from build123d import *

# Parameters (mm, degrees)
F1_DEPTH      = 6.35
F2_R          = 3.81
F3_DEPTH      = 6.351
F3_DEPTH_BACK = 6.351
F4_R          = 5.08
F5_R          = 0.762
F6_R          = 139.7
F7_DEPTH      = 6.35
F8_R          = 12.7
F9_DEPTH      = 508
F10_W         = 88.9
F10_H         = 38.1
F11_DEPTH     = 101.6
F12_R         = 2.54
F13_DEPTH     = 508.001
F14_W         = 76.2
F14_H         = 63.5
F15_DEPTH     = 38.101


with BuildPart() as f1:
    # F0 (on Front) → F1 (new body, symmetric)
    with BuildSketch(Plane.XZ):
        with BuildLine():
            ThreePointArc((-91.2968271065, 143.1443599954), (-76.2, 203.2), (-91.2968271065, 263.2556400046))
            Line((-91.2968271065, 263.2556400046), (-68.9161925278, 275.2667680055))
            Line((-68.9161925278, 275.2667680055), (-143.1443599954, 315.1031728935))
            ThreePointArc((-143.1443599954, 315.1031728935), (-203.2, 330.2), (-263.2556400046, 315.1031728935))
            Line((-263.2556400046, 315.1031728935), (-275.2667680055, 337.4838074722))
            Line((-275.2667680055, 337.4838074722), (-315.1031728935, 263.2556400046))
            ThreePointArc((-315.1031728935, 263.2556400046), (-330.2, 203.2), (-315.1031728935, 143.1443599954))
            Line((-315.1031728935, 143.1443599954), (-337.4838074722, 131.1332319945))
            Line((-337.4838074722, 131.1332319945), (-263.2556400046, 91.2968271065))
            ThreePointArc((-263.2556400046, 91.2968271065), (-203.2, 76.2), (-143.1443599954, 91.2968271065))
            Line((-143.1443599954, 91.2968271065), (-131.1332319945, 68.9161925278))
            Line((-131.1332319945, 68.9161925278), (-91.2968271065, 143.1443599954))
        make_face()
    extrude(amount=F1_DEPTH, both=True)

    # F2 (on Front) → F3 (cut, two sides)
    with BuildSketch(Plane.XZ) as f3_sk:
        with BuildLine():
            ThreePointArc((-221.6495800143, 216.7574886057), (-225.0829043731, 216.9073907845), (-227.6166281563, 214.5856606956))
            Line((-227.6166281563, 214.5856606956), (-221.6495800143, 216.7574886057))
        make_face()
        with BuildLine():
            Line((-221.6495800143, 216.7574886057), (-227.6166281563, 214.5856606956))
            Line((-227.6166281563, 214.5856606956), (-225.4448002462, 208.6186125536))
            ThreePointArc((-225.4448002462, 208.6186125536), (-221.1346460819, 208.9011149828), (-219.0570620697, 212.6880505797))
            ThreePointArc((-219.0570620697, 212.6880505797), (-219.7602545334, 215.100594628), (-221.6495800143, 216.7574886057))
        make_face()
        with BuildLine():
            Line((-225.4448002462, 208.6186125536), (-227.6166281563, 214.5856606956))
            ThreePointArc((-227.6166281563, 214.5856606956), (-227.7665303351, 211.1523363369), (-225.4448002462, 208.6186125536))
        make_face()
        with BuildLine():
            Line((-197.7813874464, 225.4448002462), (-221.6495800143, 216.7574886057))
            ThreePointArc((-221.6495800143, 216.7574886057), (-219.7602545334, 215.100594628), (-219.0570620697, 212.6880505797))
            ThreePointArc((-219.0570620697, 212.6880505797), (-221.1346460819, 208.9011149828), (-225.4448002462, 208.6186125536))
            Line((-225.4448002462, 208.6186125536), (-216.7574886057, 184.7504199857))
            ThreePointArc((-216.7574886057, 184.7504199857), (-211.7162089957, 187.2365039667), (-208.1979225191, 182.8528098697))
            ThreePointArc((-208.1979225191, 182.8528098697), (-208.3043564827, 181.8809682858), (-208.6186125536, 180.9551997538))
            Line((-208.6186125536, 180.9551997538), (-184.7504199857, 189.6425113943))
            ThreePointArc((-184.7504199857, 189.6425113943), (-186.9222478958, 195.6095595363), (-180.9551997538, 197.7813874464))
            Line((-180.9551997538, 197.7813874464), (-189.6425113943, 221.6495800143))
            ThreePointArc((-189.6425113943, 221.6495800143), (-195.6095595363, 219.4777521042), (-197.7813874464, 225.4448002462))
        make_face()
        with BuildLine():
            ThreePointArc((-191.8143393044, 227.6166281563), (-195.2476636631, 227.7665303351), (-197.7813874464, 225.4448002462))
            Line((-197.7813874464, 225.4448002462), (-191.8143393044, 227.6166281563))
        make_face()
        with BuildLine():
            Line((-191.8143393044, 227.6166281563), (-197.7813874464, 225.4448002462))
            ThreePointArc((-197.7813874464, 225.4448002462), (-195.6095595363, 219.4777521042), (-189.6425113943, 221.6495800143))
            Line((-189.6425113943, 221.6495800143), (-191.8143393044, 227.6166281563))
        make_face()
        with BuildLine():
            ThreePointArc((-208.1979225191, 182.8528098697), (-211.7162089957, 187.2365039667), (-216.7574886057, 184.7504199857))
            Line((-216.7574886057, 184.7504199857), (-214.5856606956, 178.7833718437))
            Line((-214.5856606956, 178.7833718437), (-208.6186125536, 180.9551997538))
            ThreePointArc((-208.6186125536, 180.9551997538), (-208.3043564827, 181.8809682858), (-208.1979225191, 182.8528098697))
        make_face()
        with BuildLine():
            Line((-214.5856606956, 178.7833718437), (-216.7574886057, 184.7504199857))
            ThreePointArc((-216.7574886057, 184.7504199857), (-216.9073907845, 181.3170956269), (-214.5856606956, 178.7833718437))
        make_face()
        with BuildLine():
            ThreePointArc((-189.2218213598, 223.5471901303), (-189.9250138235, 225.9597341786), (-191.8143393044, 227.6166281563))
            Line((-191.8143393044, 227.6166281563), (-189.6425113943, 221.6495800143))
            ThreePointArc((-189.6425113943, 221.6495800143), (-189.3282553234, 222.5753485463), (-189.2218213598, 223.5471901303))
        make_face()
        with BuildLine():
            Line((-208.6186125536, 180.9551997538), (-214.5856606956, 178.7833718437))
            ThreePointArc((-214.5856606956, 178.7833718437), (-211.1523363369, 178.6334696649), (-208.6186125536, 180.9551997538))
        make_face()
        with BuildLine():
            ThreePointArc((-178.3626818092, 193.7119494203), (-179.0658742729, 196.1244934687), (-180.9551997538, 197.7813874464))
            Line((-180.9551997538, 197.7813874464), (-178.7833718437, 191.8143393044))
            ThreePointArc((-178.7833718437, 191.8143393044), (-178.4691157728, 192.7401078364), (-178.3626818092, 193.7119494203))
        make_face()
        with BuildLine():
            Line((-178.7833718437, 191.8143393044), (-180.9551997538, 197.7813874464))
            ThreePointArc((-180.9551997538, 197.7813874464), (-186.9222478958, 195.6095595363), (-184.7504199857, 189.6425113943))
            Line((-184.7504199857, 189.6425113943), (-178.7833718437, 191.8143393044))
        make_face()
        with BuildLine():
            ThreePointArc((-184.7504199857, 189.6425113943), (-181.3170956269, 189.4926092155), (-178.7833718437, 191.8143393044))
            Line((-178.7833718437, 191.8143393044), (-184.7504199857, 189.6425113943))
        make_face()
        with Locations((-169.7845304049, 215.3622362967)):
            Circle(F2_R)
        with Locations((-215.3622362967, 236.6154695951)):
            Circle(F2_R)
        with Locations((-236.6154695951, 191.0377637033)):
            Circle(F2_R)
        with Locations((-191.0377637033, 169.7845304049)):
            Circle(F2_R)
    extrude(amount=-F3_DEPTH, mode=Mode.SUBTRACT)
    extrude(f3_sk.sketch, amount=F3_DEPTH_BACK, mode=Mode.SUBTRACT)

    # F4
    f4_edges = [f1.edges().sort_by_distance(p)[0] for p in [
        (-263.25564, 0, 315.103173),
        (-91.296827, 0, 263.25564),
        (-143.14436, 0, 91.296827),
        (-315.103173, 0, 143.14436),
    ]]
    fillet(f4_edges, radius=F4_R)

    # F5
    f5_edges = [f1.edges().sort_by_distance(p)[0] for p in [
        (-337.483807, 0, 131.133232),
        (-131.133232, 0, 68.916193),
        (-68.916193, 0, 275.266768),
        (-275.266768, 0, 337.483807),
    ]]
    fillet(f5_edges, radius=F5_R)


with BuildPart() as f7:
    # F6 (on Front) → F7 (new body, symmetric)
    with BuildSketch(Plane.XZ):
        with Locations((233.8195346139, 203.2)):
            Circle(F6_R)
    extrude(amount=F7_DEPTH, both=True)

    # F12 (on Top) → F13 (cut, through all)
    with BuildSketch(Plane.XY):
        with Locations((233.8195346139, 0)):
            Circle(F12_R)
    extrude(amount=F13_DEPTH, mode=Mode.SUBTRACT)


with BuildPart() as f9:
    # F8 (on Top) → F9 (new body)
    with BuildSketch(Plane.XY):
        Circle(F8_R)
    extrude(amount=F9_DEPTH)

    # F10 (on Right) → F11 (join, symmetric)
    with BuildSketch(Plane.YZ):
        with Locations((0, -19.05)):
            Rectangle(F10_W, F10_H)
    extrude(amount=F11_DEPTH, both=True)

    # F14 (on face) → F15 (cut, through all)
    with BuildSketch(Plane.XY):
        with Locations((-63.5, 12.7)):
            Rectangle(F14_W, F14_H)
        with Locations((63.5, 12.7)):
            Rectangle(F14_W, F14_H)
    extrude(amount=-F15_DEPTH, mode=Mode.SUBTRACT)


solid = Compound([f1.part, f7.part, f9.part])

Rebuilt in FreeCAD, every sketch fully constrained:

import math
import FreeCAD as App
import Part
import Sketcher

V = App.Vector
Q = App.Units.Quantity


def edges_at(feature, points):
    """Names of the edges that pass closest to the given points."""
    edges = feature.Shape.Edges
    near = lambda p: min(range(len(edges)), key=lambda i: edges[i].distToShape(Part.Vertex(*p))[0])
    return sorted({f"Edge{near(p) + 1}" for p in points})

doc = App.newDocument("Part")
body = doc.addObject("PartDesign::Body", "Body")

sketch1 = body.newObject("Sketcher::SketchObject", "Sketch")
sketch1.AttachmentSupport = (doc.getObject("XZ_Plane"), [""])
sketch1.MapMode = "FlatFace"
sketch1.addGeometry([
    Part.ArcOfCircle(Part.Circle(V(-203.2, 203.2, 0), V(0, 0, 1), 127), math.radians(-28.221345), math.radians(28.221345)),
    Part.LineSegment(V(-91.296827, 263.25564, 0), V(-68.916193, 275.266768, 0)),
    Part.LineSegment(V(-68.916193, 275.266768, 0), V(-143.14436, 315.103173, 0)),
    Part.ArcOfCircle(Part.Circle(V(-203.2, 203.2, 0), V(0, 0, 1), 127), math.radians(61.778655), math.radians(118.221345)),
    Part.LineSegment(V(-263.25564, 315.103173, 0), V(-275.266768, 337.483807, 0)),
    Part.LineSegment(V(-275.266768, 337.483807, 0), V(-315.103173, 263.25564, 0)),
    Part.ArcOfCircle(Part.Circle(V(-203.2, 203.2, 0), V(0, 0, 1), 127), math.radians(151.778655), math.radians(208.221345)),
    Part.LineSegment(V(-315.103173, 143.14436, 0), V(-337.483807, 131.133232, 0)),
    Part.LineSegment(V(-337.483807, 131.133232, 0), V(-263.25564, 91.296827, 0)),
    Part.ArcOfCircle(Part.Circle(V(-203.2, 203.2, 0), V(0, 0, 1), 127), math.radians(-118.221345), math.radians(-61.778655)),
    Part.LineSegment(V(-143.14436, 91.296827, 0), V(-131.133232, 68.916193, 0)),
    Part.LineSegment(V(-131.133232, 68.916193, 0), V(-91.296827, 143.14436, 0)),
], False)
sketch1.addConstraint([
    Sketcher.Constraint("Coincident", 0, 2, 1, 1),
    Sketcher.Constraint("Coincident", 1, 2, 2, 1),
    Sketcher.Constraint("Tangent", 2, 2, 3, 1),
    Sketcher.Constraint("Coincident", 3, 2, 4, 1),
    Sketcher.Constraint("Coincident", 4, 2, 5, 1),
    Sketcher.Constraint("Tangent", 5, 2, 6, 1),
    Sketcher.Constraint("Coincident", 6, 2, 7, 1),
    Sketcher.Constraint("Coincident", 7, 2, 8, 1),
    Sketcher.Constraint("Tangent", 8, 2, 9, 1),
    Sketcher.Constraint("Coincident", 9, 2, 10, 1),
    Sketcher.Constraint("Coincident", 10, 2, 11, 1),
    Sketcher.Constraint("Tangent", 11, 2, 0, 1),
    Sketcher.Constraint("Coincident", 3, 3, 0, 3),
    Sketcher.Constraint("Coincident", 6, 3, 0, 3),
    Sketcher.Constraint("Coincident", 9, 3, 0, 3),
    Sketcher.Constraint("Equal", 0, 3),
    Sketcher.Constraint("Equal", 3, 6),
    Sketcher.Constraint("Equal", 6, 9),
    Sketcher.Constraint("Perpendicular", 1, 4),
    Sketcher.Constraint("Perpendicular", 2, 5),
    Sketcher.Constraint("Perpendicular", 4, 7),
    Sketcher.Constraint("Perpendicular", 5, 8),
    Sketcher.Constraint("Perpendicular", 7, 10),
    Sketcher.Constraint("Perpendicular", 8, 11),
    Sketcher.Constraint("Horizontal", 2, 2, 3, 2),
    Sketcher.Constraint("Horizontal", 0, 2, 5, 2),
    Sketcher.Constraint("Horizontal", 8, 2, 9, 2),
    Sketcher.Constraint("Horizontal", 6, 2, 11, 2),
    Sketcher.Constraint("Radius", 0, Q("5 in")),
    Sketcher.Constraint("Distance", 1, Q("1 in")),
    Sketcher.Constraint("DistanceX", 0, 3, -1, 1, Q("8 in")),
    Sketcher.Constraint("DistanceY", -1, 1, 0, 3, Q("8 in")),
    Sketcher.Constraint("DistanceY", -1, 1, 1, 2, Q("275.266768 mm")),
])
pad1 = body.newObject("PartDesign::Pad", "Pad")
pad1.Profile = sketch1
pad1.Length = Q("0.5 in")
pad1.Midplane = True

sketch2 = body.newObject("Sketcher::SketchObject", "Sketch001")
sketch2.AttachmentSupport = (doc.getObject("XZ_Plane"), [""])
sketch2.MapMode = "FlatFace"
sketch2.addGeometry([
    Part.ArcOfCircle(Part.Circle(V(-223.54719, 212.688051, 0), V(0, 0, 1), 4.490128), math.radians(65), math.radians(155)),
    Part.ArcOfCircle(Part.Circle(V(-223.54719, 212.688051, 0), V(0, 0, 1), 4.490128), math.radians(155), math.radians(245)),
    Part.LineSegment(V(-225.4448, 208.618613, 0), V(-216.757489, 184.75042, 0)),
    Part.ArcOfCircle(Part.Circle(V(-212.688051, 182.85281, 0), V(0, 0, 1), 4.490128), math.radians(155), math.radians(245)),
    Part.ArcOfCircle(Part.Circle(V(-212.688051, 182.85281, 0), V(0, 0, 1), 4.490128), math.radians(-115), math.radians(-25)),
    Part.LineSegment(V(-208.618613, 180.9552, 0), V(-184.75042, 189.642511, 0)),
    Part.ArcOfCircle(Part.Circle(V(-182.85281, 193.711949, 0), V(0, 0, 1), 4.490128), math.radians(-115), math.radians(-25)),
    Part.ArcOfCircle(Part.Circle(V(-182.85281, 193.711949, 0), V(0, 0, 1), 4.490128), math.radians(-25), math.radians(0)),
    Part.ArcOfCircle(Part.Circle(V(-182.85281, 193.711949, 0), V(0, 0, 1), 4.490128), math.radians(0), math.radians(65)),
    Part.LineSegment(V(-180.9552, 197.781387, 0), V(-189.642511, 221.64958, 0)),
    Part.ArcOfCircle(Part.Circle(V(-193.711949, 223.54719, 0), V(0, 0, 1), 4.490128), math.radians(-25), math.radians(0)),
    Part.ArcOfCircle(Part.Circle(V(-193.711949, 223.54719, 0), V(0, 0, 1), 4.490128), math.radians(0), math.radians(65)),
    Part.ArcOfCircle(Part.Circle(V(-193.711949, 223.54719, 0), V(0, 0, 1), 4.490128), math.radians(65), math.radians(155)),
    Part.LineSegment(V(-197.781387, 225.4448, 0), V(-221.64958, 216.757489, 0)),
    Part.Circle(V(-169.78453, 215.362236, 0), V(0, 0, 1), 3.81),
    Part.Circle(V(-215.362236, 236.61547, 0), V(0, 0, 1), 3.81),
    Part.Circle(V(-236.61547, 191.037764, 0), V(0, 0, 1), 3.81),
    Part.Circle(V(-191.037764, 169.78453, 0), V(0, 0, 1), 3.81),
], False)
sketch2.addConstraint([
    Sketcher.Constraint("Tangent", 0, 2, 1, 1),
    Sketcher.Constraint("Coincident", 1, 2, 2, 1),
    Sketcher.Constraint("Coincident", 2, 2, 3, 1),
    Sketcher.Constraint("Tangent", 3, 2, 4, 1),
    Sketcher.Constraint("Coincident", 4, 2, 5, 1),
    Sketcher.Constraint("Coincident", 5, 2, 6, 1),
    Sketcher.Constraint("Tangent", 6, 2, 7, 1),
    Sketcher.Constraint("Tangent", 7, 2, 8, 1),
    Sketcher.Constraint("Coincident", 8, 2, 9, 1),
    Sketcher.Constraint("Coincident", 9, 2, 10, 1),
    Sketcher.Constraint("Tangent", 10, 2, 11, 1),
    Sketcher.Constraint("Tangent", 11, 2, 12, 1),
    Sketcher.Constraint("Coincident", 12, 2, 13, 1),
    Sketcher.Constraint("Coincident", 13, 2, 0, 1),
    Sketcher.Constraint("Coincident", 8, 3, 6, 3),
    Sketcher.Constraint("Coincident", 12, 3, 10, 3),
    Sketcher.Constraint("Equal", 0, 1),
    Sketcher.Constraint("Equal", 1, 3),
    Sketcher.Constraint("Equal", 3, 4),
    Sketcher.Constraint("Equal", 4, 6),
    Sketcher.Constraint("Equal", 8, 10),
    Sketcher.Constraint("Equal", 14, 15),
    Sketcher.Constraint("Equal", 15, 16),
    Sketcher.Constraint("Equal", 16, 17),
    Sketcher.Constraint("Perpendicular", 2, 5),
    Sketcher.Constraint("Perpendicular", 5, 9),
    Sketcher.Constraint("Perpendicular", 9, 13),
    Sketcher.Constraint("Horizontal", 8, 3, 7, 2),
    Sketcher.Constraint("Horizontal", 12, 3, 10, 2),
    Sketcher.Constraint("Equal", 2, 5),
    Sketcher.Constraint("Equal", 5, 9),
    Sketcher.Constraint("Equal", 9, 13),
    Sketcher.Constraint("Diameter", 14, Q("0.3 in")),
    Sketcher.Constraint("Distance", 2, Q("1 in")),
    Sketcher.Constraint("Angle", 2, Q("-70 deg")),
    Sketcher.Constraint("Radius", 0, Q("4.490128 mm")),
    Sketcher.Constraint("DistanceX", 1, 2, -1, 1, Q("225.4448 mm")),
    Sketcher.Constraint("DistanceY", -1, 1, 4, 2, Q("180.9552 mm")),
    Sketcher.Constraint("DistanceX", 8, 2, -1, 1, Q("180.9552 mm")),
    Sketcher.Constraint("DistanceY", -1, 1, 12, 2, Q("225.4448 mm")),
    Sketcher.Constraint("DistanceY", 6, 3, 0, 3, Q("18.976101 mm")),
    Sketcher.Constraint("DistanceX", 0, 3, 2, 2, Q("6.789702 mm")),
    Sketcher.Constraint("DistanceX", 3, 3, -1, 1, Q("212.688051 mm")),
    Sketcher.Constraint("DistanceX", 10, 3, -1, 1, Q("193.711949 mm")),
    Sketcher.Constraint("DistanceX", 14, 3, -1, 1, Q("169.78453 mm")),
    Sketcher.Constraint("DistanceY", -1, 1, 15, 3, Q("236.61547 mm")),
    Sketcher.Constraint("DistanceX", 16, 3, -1, 1, Q("236.61547 mm")),
    Sketcher.Constraint("DistanceY", -1, 1, 17, 3, Q("169.78453 mm")),
    Sketcher.Constraint("DistanceX", 0, 2, -1, 1, Q("227.616628 mm")),
    Sketcher.Constraint("DistanceX", 3, 2, -1, 1, Q("214.585661 mm")),
    Sketcher.Constraint("DistanceX", 6, 2, -1, 1, Q("178.783372 mm")),
    Sketcher.Constraint("DistanceX", 11, 2, -1, 1, Q("191.814339 mm")),
    Sketcher.Constraint("DistanceX", 0, 2, 15, 3, Q("12.254392 mm")),
    Sketcher.Constraint("DistanceY", 16, 3, 1, 2, Q("17.580849 mm")),
    Sketcher.Constraint("DistanceX", 4, 2, 17, 3, Q("17.580849 mm")),
    Sketcher.Constraint("DistanceY", -1, 1, 14, 3, Q("215.362236 mm")),
])
pocket1 = body.newObject("PartDesign::Pocket", "Pocket")
pocket1.Profile = sketch2
pocket1.Type = "ThroughAll"
pocket1.Midplane = True
doc.recompute()

fillet = body.newObject("PartDesign::Fillet", "Fillet")
fillet.Base = (pocket1, edges_at(pocket1, [
    (-263.256, 0, 315.103),
    (-91.297, 0, 263.256),
    (-143.144, 0, 91.297),
    (-315.103, 0, 143.144),
]))
fillet.Radius = Q("0.2 in")
doc.recompute()

fillet2 = body.newObject("PartDesign::Fillet", "Fillet001")
fillet2.Base = (fillet, edges_at(fillet, [
    (-337.484, 0, 131.133),
    (-131.133, 0, 68.916),
    (-68.916, 0, 275.267),
    (-275.267, 0, 337.484),
]))
fillet2.Radius = Q("0.03 in")
body2 = doc.addObject("PartDesign::Body", "Body001")

sketch3 = body2.newObject("Sketcher::SketchObject", "Sketch002")
sketch3.AttachmentSupport = (doc.getObject("XZ_Plane001"), [""])
sketch3.MapMode = "FlatFace"
sketch3.addGeometry(Part.Circle(V(233.819535, 203.2, 0), V(0, 0, 1), 139.7), False)
sketch3.addConstraint([
    Sketcher.Constraint("Diameter", 0, Q("11 in")),
    Sketcher.Constraint("DistanceY", -1, 1, 0, 3, Q("8 in")),
    Sketcher.Constraint("DistanceX", -1, 1, 0, 3, Q("233.819535 mm")),
])
pad2 = body2.newObject("PartDesign::Pad", "Pad001")
pad2.Profile = sketch3
pad2.Length = Q("0.5 in")
pad2.Midplane = True

sketch4 = body2.newObject("Sketcher::SketchObject", "Sketch003")
sketch4.AttachmentSupport = (doc.getObject("XY_Plane001"), [""])
sketch4.MapMode = "FlatFace"
sketch4.addGeometry(Part.Circle(V(233.819535, 0, 0), V(0, 0, 1), 2.54), False)
sketch4.addConstraint([
    Sketcher.Constraint("PointOnObject", 0, 3, -1),
    Sketcher.Constraint("Diameter", 0, Q("0.2 in")),
    Sketcher.Constraint("DistanceX", -1, 1, 0, 3, Q("233.819535 mm")),
])
pocket2 = body2.newObject("PartDesign::Pocket", "Pocket001")
pocket2.Profile = sketch4
pocket2.Type = "ThroughAll"
pocket2.Reversed = True
body3 = doc.addObject("PartDesign::Body", "Body002")

sketch5 = body3.newObject("Sketcher::SketchObject", "Sketch004")
sketch5.AttachmentSupport = (doc.getObject("XY_Plane002"), [""])
sketch5.MapMode = "FlatFace"
sketch5.addGeometry(Part.Circle(V(0, 0, 0), V(0, 0, 1), 12.7), False)
sketch5.addConstraint([
    Sketcher.Constraint("Coincident", 0, 3, -1, 1),
    Sketcher.Constraint("Diameter", 0, Q("1 in")),
])
pad3 = body3.newObject("PartDesign::Pad", "Pad002")
pad3.Profile = sketch5
pad3.Length = Q("20 in")

sketch6 = body3.newObject("Sketcher::SketchObject", "Sketch005")
sketch6.AttachmentSupport = (doc.getObject("YZ_Plane002"), [""])
sketch6.MapMode = "FlatFace"
sketch6.addGeometry([
    Part.LineSegment(V(-44.45, 0, 0), V(-44.45, -38.1, 0)),
    Part.LineSegment(V(-44.45, -38.1, 0), V(44.45, -38.1, 0)),
    Part.LineSegment(V(44.45, -38.1, 0), V(44.45, 0, 0)),
    Part.LineSegment(V(44.45, 0, 0), V(-44.45, 0, 0)),
], False)
sketch6.addConstraint([
    Sketcher.Constraint("Coincident", 0, 2, 1, 1),
    Sketcher.Constraint("Coincident", 1, 2, 2, 1),
    Sketcher.Constraint("Coincident", 2, 2, 3, 1),
    Sketcher.Constraint("Coincident", 3, 2, 0, 1),
    Sketcher.Constraint("Vertical", 0),
    Sketcher.Constraint("Horizontal", 1),
    Sketcher.Constraint("Vertical", 2),
    Sketcher.Constraint("Horizontal", 3),
    Sketcher.Constraint("Symmetric", 2, 2, 3, 2, -1, 1),
    Sketcher.Constraint("DistanceX", 1, 1, 1, 2, Q("3.5 in")),
    Sketcher.Constraint("DistanceY", 0, 2, 0, 1, Q("1.5 in")),
])
pad4 = body3.newObject("PartDesign::Pad", "Pad003")
pad4.Profile = sketch6
pad4.Length = Q("8 in")
pad4.Midplane = True

sketch7 = body3.newObject("Sketcher::SketchObject", "Sketch006")
sketch7.AttachmentSupport = (doc.getObject("XY_Plane002"), [""])
sketch7.MapMode = "FlatFace"
sketch7.addGeometry([
    Part.LineSegment(V(-101.6, 44.45, 0), V(-101.6, -19.05, 0)),
    Part.LineSegment(V(-101.6, -19.05, 0), V(-25.4, -19.05, 0)),
    Part.LineSegment(V(-25.4, -19.05, 0), V(-25.4, 44.45, 0)),
    Part.LineSegment(V(-25.4, 44.45, 0), V(-101.6, 44.45, 0)),
    Part.LineSegment(V(25.4, 44.45, 0), V(25.4, -19.05, 0)),
    Part.LineSegment(V(25.4, -19.05, 0), V(101.6, -19.05, 0)),
    Part.LineSegment(V(101.6, -19.05, 0), V(101.6, 44.45, 0)),
    Part.LineSegment(V(101.6, 44.45, 0), V(25.4, 44.45, 0)),
], False)
sketch7.addConstraint([
    Sketcher.Constraint("Coincident", 0, 2, 1, 1),
    Sketcher.Constraint("Coincident", 1, 2, 2, 1),
    Sketcher.Constraint("Coincident", 2, 2, 3, 1),
    Sketcher.Constraint("Coincident", 3, 2, 0, 1),
    Sketcher.Constraint("Coincident", 4, 2, 5, 1),
    Sketcher.Constraint("Coincident", 5, 2, 6, 1),
    Sketcher.Constraint("Coincident", 6, 2, 7, 1),
    Sketcher.Constraint("Coincident", 7, 2, 4, 1),
    Sketcher.Constraint("Vertical", 0),
    Sketcher.Constraint("Horizontal", 1),
    Sketcher.Constraint("Vertical", 2),
    Sketcher.Constraint("Horizontal", 3),
    Sketcher.Constraint("Vertical", 4),
    Sketcher.Constraint("Horizontal", 5),
    Sketcher.Constraint("Vertical", 6),
    Sketcher.Constraint("Horizontal", 7),
    Sketcher.Constraint("Symmetric", 1, 2, 4, 2, -2),
    Sketcher.Constraint("Symmetric", 3, 2, 6, 2, -2),
    Sketcher.Constraint("DistanceX", 1, 1, 1, 2, Q("3 in")),
    Sketcher.Constraint("DistanceY", 0, 2, 0, 1, Q("2.5 in")),
    Sketcher.Constraint("DistanceX", 0, 2, -1, 1, Q("4 in")),
    Sketcher.Constraint("DistanceY", 0, 2, -1, 1, Q("0.75 in")),
])
pocket3 = body3.newObject("PartDesign::Pocket", "Pocket002")
pocket3.Profile = sketch7
pocket3.Type = "ThroughAll"

doc.recompute()
